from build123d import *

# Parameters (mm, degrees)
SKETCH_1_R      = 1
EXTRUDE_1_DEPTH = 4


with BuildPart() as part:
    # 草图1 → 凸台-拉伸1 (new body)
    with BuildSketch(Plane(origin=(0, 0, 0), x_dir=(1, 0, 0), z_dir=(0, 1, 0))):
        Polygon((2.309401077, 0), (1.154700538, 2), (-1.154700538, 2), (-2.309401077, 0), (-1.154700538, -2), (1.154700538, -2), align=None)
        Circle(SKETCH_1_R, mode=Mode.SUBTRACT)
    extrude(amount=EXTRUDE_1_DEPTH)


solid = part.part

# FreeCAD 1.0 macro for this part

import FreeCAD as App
import Part
import Sketcher

V = App.Vector
Q = App.Units.Quantity


def add_polygon(sketch, points):
    """Adds a closed chain of lines whose ends are joined by coincident constraints."""
    first, n = sketch.GeometryCount, len(points)
    for a, b in zip(points, points[1:] + points[:1]):
        sketch.addGeometry(Part.LineSegment(App.Vector(*a, 0), App.Vector(*b, 0)), False)
    for i in range(n):
        sketch.addConstraint(Sketcher.Constraint("Coincident", first + i, 2, first + (i + 1) % n, 1))

doc = App.newDocument("Part")
body = doc.addObject("PartDesign::Body", "Body")

# Sketch on XZ plane
sketch1 = body.newObject("Sketcher::SketchObject", "Sketch")
sketch1.AttachmentSupport = (doc.getObject("XZ_Plane"), [""])
sketch1.MapMode = "FlatFace"
add_polygon(sketch1, [(2.309401, 0), (1.154701, -2), (-1.154701, -2), (-2.309401, 0), (-1.154701, 2), (1.154701, 2)])  # lines 0-5
sketch1.addGeometry(Part.Circle(V(0, 0, 0), V(0, 0, 1), 1), False)  # 6
sketch1.addConstraint(Sketcher.Constraint("Horizontal", 1))
sketch1.addConstraint(Sketcher.Constraint("Horizontal", 4))
sketch1.addConstraint(Sketcher.Constraint("Coincident", 6, 3, -1, 1))
sketch1.addConstraint(Sketcher.Constraint("Symmetric", 0, 2, 3, 2, -1, 1))
sketch1.addConstraint(Sketcher.Constraint("Symmetric", 2, 2, 5, 2, -1, 1))
sketch1.addConstraint(Sketcher.Constraint("PointOnObject", 2, 2, -1))
sketch1.addConstraint(Sketcher.Constraint("Parallel", 2, 5))
sketch1.addConstraint(Sketcher.Constraint("Vertical", 1, 2, 3, 2))
sketch1.addConstraint(Sketcher.Constraint("Diameter", 6, Q("2 mm")))
sketch1.addConstraint(Sketcher.Constraint("Angle", 0, Q("-120 deg")))
sketch1.addConstraint(Sketcher.Constraint("DistanceY", 0, 2, -1, 1, Q("2 mm")))
sketch1.addConstraint(Sketcher.Constraint("DistanceX", 1, 2, 1, 1, Q("2.309401 mm")))
pad1 = body.newObject("PartDesign::Pad", "Pad")
pad1.Profile = sketch1
pad1.Length = 4
pad1.Reversed = True

doc.recompute()
